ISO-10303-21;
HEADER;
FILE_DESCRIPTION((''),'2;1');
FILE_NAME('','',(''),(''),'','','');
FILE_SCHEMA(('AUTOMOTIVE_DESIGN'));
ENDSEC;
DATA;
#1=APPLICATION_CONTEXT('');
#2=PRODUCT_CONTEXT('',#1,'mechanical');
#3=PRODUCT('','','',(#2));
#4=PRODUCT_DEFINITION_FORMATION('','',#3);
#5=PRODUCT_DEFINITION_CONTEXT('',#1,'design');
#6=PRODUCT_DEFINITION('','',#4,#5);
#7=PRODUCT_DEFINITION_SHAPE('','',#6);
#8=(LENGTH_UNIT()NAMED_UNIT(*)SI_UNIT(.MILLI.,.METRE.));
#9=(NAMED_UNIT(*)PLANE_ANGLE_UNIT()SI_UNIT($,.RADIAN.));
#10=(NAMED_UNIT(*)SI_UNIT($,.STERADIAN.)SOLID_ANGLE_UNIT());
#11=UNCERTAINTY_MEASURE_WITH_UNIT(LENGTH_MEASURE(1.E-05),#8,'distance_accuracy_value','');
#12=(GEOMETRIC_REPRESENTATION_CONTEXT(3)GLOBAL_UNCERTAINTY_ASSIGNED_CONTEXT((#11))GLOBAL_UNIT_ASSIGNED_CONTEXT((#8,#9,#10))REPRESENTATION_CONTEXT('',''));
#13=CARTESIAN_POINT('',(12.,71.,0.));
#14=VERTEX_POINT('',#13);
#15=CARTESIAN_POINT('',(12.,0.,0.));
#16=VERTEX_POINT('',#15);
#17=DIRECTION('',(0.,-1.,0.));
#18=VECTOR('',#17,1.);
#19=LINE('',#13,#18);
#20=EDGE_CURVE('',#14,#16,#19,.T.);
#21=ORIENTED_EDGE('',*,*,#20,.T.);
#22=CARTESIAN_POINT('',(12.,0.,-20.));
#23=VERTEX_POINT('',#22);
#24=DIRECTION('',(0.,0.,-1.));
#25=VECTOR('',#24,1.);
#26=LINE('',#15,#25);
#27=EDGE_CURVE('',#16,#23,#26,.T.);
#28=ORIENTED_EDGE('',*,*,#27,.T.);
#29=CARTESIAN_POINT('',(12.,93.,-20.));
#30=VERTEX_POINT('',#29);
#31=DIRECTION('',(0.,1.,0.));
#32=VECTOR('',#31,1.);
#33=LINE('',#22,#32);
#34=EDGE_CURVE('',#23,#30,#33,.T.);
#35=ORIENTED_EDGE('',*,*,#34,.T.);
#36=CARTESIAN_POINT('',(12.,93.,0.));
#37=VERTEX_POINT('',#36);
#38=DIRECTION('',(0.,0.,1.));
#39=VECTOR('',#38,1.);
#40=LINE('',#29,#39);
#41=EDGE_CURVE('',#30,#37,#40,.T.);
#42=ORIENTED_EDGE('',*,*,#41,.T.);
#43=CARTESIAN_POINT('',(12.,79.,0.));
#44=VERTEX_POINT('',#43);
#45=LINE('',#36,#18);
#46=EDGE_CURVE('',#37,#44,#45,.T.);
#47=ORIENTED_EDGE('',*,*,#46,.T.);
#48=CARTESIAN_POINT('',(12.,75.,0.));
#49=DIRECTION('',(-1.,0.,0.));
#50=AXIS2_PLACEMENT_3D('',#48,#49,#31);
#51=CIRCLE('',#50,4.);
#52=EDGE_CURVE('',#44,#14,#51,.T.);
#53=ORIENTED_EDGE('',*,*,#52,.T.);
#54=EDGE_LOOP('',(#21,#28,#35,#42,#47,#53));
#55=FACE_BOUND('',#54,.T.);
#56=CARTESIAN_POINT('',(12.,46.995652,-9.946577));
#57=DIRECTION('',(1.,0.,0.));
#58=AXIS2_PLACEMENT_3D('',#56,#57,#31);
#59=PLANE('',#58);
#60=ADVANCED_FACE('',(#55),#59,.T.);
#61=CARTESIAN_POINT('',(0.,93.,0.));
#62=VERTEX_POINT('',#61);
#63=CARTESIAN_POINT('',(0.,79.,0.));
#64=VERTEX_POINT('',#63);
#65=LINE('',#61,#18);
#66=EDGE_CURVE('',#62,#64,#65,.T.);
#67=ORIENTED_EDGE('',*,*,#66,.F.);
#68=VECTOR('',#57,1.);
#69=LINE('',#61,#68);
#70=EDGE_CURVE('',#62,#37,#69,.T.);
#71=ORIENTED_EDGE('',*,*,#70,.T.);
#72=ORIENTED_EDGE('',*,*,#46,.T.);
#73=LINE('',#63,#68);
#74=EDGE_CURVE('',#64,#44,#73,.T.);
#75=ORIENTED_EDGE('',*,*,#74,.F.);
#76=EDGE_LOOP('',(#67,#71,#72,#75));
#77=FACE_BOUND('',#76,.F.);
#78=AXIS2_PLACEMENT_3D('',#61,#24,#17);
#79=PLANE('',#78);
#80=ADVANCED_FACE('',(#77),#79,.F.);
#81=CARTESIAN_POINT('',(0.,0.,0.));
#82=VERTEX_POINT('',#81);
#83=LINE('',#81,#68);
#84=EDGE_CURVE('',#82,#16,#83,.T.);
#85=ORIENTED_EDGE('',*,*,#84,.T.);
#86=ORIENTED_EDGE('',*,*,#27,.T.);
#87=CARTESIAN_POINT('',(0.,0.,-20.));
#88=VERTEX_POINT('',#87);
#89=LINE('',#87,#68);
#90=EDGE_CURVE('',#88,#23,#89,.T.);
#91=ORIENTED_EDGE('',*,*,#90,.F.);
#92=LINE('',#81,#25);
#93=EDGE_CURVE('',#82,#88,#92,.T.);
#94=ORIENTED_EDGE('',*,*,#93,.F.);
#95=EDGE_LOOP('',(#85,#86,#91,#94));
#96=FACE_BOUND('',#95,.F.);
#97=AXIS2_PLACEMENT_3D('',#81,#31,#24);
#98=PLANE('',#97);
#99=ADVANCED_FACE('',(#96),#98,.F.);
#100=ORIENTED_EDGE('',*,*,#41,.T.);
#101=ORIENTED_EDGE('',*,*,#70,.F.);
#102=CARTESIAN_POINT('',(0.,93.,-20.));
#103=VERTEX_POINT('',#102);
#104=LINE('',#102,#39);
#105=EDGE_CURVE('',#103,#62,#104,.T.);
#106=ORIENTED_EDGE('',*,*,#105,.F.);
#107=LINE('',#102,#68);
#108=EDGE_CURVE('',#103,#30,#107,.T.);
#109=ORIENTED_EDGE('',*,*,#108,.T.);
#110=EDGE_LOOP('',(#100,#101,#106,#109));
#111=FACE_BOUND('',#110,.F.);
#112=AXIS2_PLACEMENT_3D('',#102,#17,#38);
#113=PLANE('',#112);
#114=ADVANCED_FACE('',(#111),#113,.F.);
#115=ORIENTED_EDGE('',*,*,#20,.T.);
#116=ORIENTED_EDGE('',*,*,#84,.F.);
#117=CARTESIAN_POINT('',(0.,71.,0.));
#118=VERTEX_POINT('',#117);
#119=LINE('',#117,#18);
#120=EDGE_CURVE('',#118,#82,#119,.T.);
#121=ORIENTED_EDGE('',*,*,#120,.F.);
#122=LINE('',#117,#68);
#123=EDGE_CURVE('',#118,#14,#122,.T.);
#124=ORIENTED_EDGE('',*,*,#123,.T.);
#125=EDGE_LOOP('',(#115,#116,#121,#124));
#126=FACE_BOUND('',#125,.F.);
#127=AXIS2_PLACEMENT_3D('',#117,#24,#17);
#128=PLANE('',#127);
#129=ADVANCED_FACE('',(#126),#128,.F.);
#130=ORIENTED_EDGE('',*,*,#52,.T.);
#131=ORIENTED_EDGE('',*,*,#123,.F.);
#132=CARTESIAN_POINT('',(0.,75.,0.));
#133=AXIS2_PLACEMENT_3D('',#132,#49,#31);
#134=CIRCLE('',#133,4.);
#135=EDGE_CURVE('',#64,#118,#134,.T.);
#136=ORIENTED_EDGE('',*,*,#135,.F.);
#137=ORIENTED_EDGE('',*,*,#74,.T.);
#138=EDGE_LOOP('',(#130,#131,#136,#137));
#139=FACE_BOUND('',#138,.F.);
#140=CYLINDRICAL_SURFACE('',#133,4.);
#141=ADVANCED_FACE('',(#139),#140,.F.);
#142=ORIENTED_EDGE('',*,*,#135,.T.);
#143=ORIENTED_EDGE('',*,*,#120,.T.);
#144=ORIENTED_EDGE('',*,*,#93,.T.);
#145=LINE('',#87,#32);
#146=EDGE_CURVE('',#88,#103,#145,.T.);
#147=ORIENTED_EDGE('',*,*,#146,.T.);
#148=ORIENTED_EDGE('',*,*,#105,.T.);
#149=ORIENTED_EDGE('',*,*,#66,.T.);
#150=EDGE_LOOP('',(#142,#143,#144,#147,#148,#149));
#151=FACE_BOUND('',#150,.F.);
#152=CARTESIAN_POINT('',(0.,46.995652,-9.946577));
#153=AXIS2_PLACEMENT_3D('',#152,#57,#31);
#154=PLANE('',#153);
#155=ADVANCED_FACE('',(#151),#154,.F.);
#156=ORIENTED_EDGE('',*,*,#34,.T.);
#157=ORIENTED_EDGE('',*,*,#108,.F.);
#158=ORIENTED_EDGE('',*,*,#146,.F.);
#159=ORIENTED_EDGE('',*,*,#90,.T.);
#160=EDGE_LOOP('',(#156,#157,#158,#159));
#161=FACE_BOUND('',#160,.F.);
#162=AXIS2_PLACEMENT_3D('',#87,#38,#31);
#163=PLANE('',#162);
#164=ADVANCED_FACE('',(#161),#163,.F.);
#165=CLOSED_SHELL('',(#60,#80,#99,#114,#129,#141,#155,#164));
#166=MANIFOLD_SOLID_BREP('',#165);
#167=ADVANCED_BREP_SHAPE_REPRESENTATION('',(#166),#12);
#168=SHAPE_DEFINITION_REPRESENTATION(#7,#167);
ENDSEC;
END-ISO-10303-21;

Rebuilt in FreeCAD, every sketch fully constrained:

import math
import FreeCAD as App
import Part
import Sketcher
from FreeCAD import Vector
Q = App.Units.Quantity

doc = App.newDocument("Part")
body = doc.addObject("PartDesign::Body", "Body")

# Sketch on YZ plane
sketch1 = body.newObject("Sketcher::SketchObject", "Sketch")
sketch1.AttachmentSupport = (doc.getObject("YZ_Plane"), [""])
sketch1.MapMode = "FlatFace"
sketch1.addGeometry([
    Part.LineSegment(Vector(0, 0, 0), Vector(0, -20, 0)),  # 0
    Part.LineSegment(Vector(0, -20, 0), Vector(93, -20, 0)),  # 1
    Part.LineSegment(Vector(93, -20, 0), Vector(93, 0, 0)),  # 2
    Part.LineSegment(Vector(93, 0, 0), Vector(79, 0, 0)),  # 3
    Part.ArcOfCircle(Part.Circle(Vector(75, 0, 0), Vector(0, 0, 1), 4), math.radians(180), math.radians(360)),  # 4
    Part.LineSegment(Vector(71, 0, 0), Vector(0, 0, 0)),  # 5
], False)
sketch1.addConstraint([
    Sketcher.Constraint("Coincident", 0, 2, 1, 1),
    Sketcher.Constraint("Coincident", 1, 2, 2, 1),
    Sketcher.Constraint("Coincident", 2, 2, 3, 1),
    Sketcher.Constraint("Coincident", 3, 2, 4, 2),
    Sketcher.Constraint("Coincident", 4, 1, 5, 1),
    Sketcher.Constraint("Coincident", 5, 2, 0, 1),
    Sketcher.Constraint("Vertical", 0),
    Sketcher.Constraint("Horizontal", 1),
    Sketcher.Constraint("Vertical", 2),
    Sketcher.Constraint("Horizontal", 3),
    Sketcher.Constraint("Horizontal", 5),
    Sketcher.Constraint("Coincident", 5, 2, -1, 1),
    Sketcher.Constraint("PointOnObject", 4, 3, -1),
    Sketcher.Constraint("PointOnObject", 2, 2, -1),
    Sketcher.Constraint("Radius", 4, Q("4 mm")),
    Sketcher.Constraint("DistanceX", 1, 1, 1, 2, Q("93 mm")),
    Sketcher.Constraint("DistanceX", 3, 2, 3, 1, Q("14 mm")),
    Sketcher.Constraint("DistanceY", 0, 2, 0, 1, Q("20 mm")),
])
pad1 = body.newObject("PartDesign::Pad", "Pad")
pad1.Profile = sketch1
pad1.Length = 12

doc.recompute()
